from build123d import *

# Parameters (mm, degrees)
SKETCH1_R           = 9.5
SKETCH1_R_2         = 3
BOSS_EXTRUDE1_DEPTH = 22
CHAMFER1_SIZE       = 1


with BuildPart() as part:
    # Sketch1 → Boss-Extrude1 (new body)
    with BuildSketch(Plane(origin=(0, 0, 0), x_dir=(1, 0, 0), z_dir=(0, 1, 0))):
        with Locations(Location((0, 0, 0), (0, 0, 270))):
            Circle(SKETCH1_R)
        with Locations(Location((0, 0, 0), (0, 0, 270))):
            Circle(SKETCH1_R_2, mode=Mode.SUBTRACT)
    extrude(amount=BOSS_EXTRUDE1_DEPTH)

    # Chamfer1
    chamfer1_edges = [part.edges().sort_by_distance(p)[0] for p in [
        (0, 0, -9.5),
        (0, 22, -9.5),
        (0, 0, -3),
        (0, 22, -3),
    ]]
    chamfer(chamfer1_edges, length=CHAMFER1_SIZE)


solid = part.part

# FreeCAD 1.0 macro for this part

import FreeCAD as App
import Part
import Sketcher
from FreeCAD import Vector
Q = App.Units.Quantity


def edges_at(feature, points):
    """Names of the edges that pass closest to the given points."""
    edges = feature.Shape.Edges
    near = lambda p: min(range(len(edges)), key=lambda i: edges[i].distToShape(Part.Vertex(*p))[0])
    return sorted({f"Edge{near(p) + 1}" for p in points})

doc = App.newDocument("Part")
body = doc.addObject("PartDesign::Body", "Body")

# Sketch on XZ plane
sketch1 = body.newObject("Sketcher::SketchObject", "Sketch")
sketch1.AttachmentSupport = (doc.getObject("XZ_Plane"), [""])
sketch1.MapMode = "FlatFace"
sketch1.addGeometry([
    Part.Circle(Vector(0, 0, 0), Vector(0, 0, 1), 9.5),
    Part.Circle(Vector(0, 0, 0), Vector(0, 0, 1), 3),
], False)
sketch1.addConstraint([
    Sketcher.Constraint("Coincident", 0, 3, -1, 1),
    Sketcher.Constraint("Coincident", 1, 3, -1, 1),
    Sketcher.Constraint("Diameter", 0, Q("19 mm")),
    Sketcher.Constraint("Diameter", 1, Q("6 mm")),
])
pad1 = body.newObject("PartDesign::Pad", "Pad")
pad1.Profile = sketch1
pad1.Length = 22
pad1.Reversed = True
doc.recompute()

chamfer = body.newObject("PartDesign::Chamfer", "Chamfer")
chamfer.Base = (pad1, edges_at(pad1, [
    (0, 0, -9.5),
    (0, 22, -9.5),
    (0, 0, -3),
    (0, 22, -3),
]))
chamfer.Size = 1

doc.recompute()
